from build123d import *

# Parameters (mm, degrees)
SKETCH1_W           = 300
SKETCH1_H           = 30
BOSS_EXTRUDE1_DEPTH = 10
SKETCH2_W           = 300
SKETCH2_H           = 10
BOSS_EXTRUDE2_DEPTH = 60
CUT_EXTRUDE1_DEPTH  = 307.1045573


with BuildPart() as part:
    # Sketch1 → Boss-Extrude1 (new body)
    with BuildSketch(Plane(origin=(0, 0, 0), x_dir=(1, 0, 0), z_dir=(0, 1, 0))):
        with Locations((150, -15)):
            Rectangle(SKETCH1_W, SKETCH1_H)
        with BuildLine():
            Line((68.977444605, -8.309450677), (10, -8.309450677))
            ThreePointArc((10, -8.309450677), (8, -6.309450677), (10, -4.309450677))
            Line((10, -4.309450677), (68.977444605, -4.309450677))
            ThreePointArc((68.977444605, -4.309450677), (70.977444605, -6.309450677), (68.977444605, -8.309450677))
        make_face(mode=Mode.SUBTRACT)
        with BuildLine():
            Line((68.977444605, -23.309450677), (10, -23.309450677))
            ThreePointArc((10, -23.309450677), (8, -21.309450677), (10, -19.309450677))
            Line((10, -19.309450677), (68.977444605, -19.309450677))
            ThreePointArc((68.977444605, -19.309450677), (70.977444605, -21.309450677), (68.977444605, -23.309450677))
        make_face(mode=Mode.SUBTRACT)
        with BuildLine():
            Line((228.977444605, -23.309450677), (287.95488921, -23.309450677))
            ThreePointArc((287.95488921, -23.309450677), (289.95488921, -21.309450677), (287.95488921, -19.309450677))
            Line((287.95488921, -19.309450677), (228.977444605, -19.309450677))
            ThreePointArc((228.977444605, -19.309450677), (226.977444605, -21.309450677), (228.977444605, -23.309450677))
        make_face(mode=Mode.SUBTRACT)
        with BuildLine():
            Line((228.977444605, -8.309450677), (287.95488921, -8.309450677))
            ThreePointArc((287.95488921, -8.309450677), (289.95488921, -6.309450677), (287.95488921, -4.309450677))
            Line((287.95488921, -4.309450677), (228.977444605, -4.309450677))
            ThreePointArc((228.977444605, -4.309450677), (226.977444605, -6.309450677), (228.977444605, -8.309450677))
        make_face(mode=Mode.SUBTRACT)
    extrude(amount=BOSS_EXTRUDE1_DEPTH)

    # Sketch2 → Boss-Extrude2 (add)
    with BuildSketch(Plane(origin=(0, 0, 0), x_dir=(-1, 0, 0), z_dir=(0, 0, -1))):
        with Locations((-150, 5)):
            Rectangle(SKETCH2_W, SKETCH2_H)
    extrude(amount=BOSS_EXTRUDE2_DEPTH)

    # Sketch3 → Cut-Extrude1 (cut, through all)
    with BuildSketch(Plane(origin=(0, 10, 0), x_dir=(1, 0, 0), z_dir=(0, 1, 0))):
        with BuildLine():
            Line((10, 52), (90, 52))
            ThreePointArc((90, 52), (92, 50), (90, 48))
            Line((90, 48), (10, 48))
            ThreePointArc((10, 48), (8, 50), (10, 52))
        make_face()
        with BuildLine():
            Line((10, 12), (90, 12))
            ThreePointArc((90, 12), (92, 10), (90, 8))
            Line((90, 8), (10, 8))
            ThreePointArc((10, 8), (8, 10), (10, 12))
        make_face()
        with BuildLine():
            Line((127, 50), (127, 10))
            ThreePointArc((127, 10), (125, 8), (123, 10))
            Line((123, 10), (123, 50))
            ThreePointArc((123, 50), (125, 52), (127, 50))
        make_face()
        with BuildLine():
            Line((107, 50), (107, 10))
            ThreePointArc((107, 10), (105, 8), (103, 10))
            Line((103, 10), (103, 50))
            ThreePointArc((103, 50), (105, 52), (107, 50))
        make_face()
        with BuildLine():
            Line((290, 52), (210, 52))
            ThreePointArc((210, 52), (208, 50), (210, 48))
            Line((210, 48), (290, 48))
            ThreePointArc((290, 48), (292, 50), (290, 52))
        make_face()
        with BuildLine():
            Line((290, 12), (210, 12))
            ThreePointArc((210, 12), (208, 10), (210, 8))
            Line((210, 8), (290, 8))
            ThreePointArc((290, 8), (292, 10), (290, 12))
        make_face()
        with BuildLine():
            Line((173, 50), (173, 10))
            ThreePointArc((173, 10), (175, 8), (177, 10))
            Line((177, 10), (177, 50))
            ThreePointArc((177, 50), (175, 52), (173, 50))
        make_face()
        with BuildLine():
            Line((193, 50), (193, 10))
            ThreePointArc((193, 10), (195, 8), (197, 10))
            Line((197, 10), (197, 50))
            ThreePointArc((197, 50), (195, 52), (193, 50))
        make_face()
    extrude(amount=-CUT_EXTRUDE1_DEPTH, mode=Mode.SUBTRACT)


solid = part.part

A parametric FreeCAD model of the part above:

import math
import FreeCAD as App
import Part
import Sketcher

V = App.Vector
Q = App.Units.Quantity


def add_polygon(sketch, points):
    """Adds a closed chain of lines whose ends are joined by coincident constraints."""
    first, n = sketch.GeometryCount, len(points)
    for a, b in zip(points, points[1:] + points[:1]):
        sketch.addGeometry(Part.LineSegment(App.Vector(*a, 0), App.Vector(*b, 0)), False)
    for i in range(n):
        sketch.addConstraint(Sketcher.Constraint("Coincident", first + i, 2, first + (i + 1) % n, 1))

doc = App.newDocument("Part")
body = doc.addObject("PartDesign::Body", "Body")

# Sketch on XZ plane
sketch1 = body.newObject("Sketcher::SketchObject", "Sketch")
sketch1.AttachmentSupport = (doc.getObject("XZ_Plane"), [""])
sketch1.MapMode = "FlatFace"
add_polygon(sketch1, [(0, 0), (0, 30), (300, 30), (300, 0)])  # lines 0-3
sketch1.addGeometry(Part.ArcOfCircle(Part.Circle(V(68.977445, 21.309451, 0), V(0, 0, 1), 2), math.radians(-90), math.radians(90)), False)  # 4
sketch1.addGeometry(Part.LineSegment(V(68.977445, 23.309451, 0), V(10, 23.309451, 0)), False)  # 5
sketch1.addGeometry(Part.ArcOfCircle(Part.Circle(V(10, 21.309451, 0), V(0, 0, 1), 2), math.radians(90), math.radians(270)), False)  # 6
sketch1.addGeometry(Part.LineSegment(V(10, 19.309451, 0), V(68.977445, 19.309451, 0)), False)  # 7
sketch1.addGeometry(Part.LineSegment(V(287.954889, 23.309451, 0), V(228.977445, 23.309451, 0)), False)  # 8
sketch1.addGeometry(Part.ArcOfCircle(Part.Circle(V(228.977445, 21.309451, 0), V(0, 0, 1), 2), math.radians(90), math.radians(270)), False)  # 9
sketch1.addGeometry(Part.LineSegment(V(228.977445, 19.309451, 0), V(287.954889, 19.309451, 0)), False)  # 10
sketch1.addGeometry(Part.ArcOfCircle(Part.Circle(V(287.954889, 21.309451, 0), V(0, 0, 1), 2), math.radians(-90), math.radians(90)), False)  # 11
sketch1.addGeometry(Part.ArcOfCircle(Part.Circle(V(68.977445, 6.309451, 0), V(0, 0, 1), 2), math.radians(-90), math.radians(90)), False)  # 12
sketch1.addGeometry(Part.LineSegment(V(68.977445, 8.309451, 0), V(10, 8.309451, 0)), False)  # 13
sketch1.addGeometry(Part.ArcOfCircle(Part.Circle(V(10, 6.309451, 0), V(0, 0, 1), 2), math.radians(90), math.radians(270)), False)  # 14
sketch1.addGeometry(Part.LineSegment(V(10, 4.309451, 0), V(68.977445, 4.309451, 0)), False)  # 15
sketch1.addGeometry(Part.LineSegment(V(287.954889, 8.309451, 0), V(228.977445, 8.309451, 0)), False)  # 16
sketch1.addGeometry(Part.ArcOfCircle(Part.Circle(V(228.977445, 6.309451, 0), V(0, 0, 1), 2), math.radians(90), math.radians(270)), False)  # 17
sketch1.addGeometry(Part.LineSegment(V(228.977445, 4.309451, 0), V(287.954889, 4.309451, 0)), False)  # 18
sketch1.addGeometry(Part.ArcOfCircle(Part.Circle(V(287.954889, 6.309451, 0), V(0, 0, 1), 2), math.radians(-90), math.radians(90)), False)  # 19
sketch1.addConstraint([
    Sketcher.Constraint("Tangent", 4, 2, 5, 1),
    Sketcher.Constraint("Tangent", 5, 2, 6, 1),
    Sketcher.Constraint("Tangent", 6, 2, 7, 1),
    Sketcher.Constraint("Tangent", 7, 2, 4, 1),
    Sketcher.Constraint("Tangent", 8, 2, 9, 1),
    Sketcher.Constraint("Tangent", 9, 2, 10, 1),
    Sketcher.Constraint("Tangent", 10, 2, 11, 1),
    Sketcher.Constraint("Tangent", 11, 2, 8, 1),
    Sketcher.Constraint("Tangent", 12, 2, 13, 1),
    Sketcher.Constraint("Tangent", 13, 2, 14, 1),
    Sketcher.Constraint("Tangent", 14, 2, 15, 1),
    Sketcher.Constraint("Tangent", 15, 2, 12, 1),
    Sketcher.Constraint("Tangent", 16, 2, 17, 1),
    Sketcher.Constraint("Tangent", 17, 2, 18, 1),
    Sketcher.Constraint("Tangent", 18, 2, 19, 1),
    Sketcher.Constraint("Tangent", 19, 2, 16, 1),
    Sketcher.Constraint("Vertical", 0),
    Sketcher.Constraint("Horizontal", 1),
    Sketcher.Constraint("Vertical", 2),
    Sketcher.Constraint("Horizontal", 3),
    Sketcher.Constraint("Horizontal", 5),
    Sketcher.Constraint("Horizontal", 7),
    Sketcher.Constraint("Horizontal", 8),
    Sketcher.Constraint("Horizontal", 10),
    Sketcher.Constraint("Horizontal", 13),
    Sketcher.Constraint("Horizontal", 15),
    Sketcher.Constraint("Horizontal", 16),
    Sketcher.Constraint("Horizontal", 18),
    Sketcher.Constraint("Coincident", 3, 2, -1, 1),
    Sketcher.Constraint("Equal", 6, 9),
    Sketcher.Constraint("Equal", 11, 12),
    Sketcher.Constraint("Equal", 14, 17),
    Sketcher.Constraint("Horizontal", 6, 3, 9, 3),
    Sketcher.Constraint("Horizontal", 14, 3, 17, 3),
    Sketcher.Constraint("Vertical", 4, 3, 12, 3),
    Sketcher.Constraint("Vertical", 6, 3, 14, 3),
    Sketcher.Constraint("Vertical", 9, 3, 17, 3),
    Sketcher.Constraint("Vertical", 11, 3, 19, 3),
    Sketcher.Constraint("Equal", 7, 8),
    Sketcher.Constraint("Radius", 4, Q("2 mm")),
    Sketcher.Constraint("DistanceX", 1, 1, 1, 2, Q("300 mm")),
    Sketcher.Constraint("DistanceY", 0, 1, 0, 2, Q("30 mm")),
    Sketcher.Constraint("DistanceX", -1, 1, 6, 3, Q("10 mm")),
    Sketcher.Constraint("DistanceX", 4, 3, 9, 3, Q("160 mm")),
    Sketcher.Constraint("DistanceY", 12, 3, 4, 3, Q("15 mm")),
    Sketcher.Constraint("DistanceX", 5, 2, 5, 1, Q("58.977445 mm")),
    Sketcher.Constraint("DistanceY", -1, 1, 4, 3, Q("21.309451 mm")),
])
pad1 = body.newObject("PartDesign::Pad", "Pad")
pad1.Profile = sketch1
pad1.Length = 10
pad1.Reversed = True

# Sketch on XY plane
sketch2 = body.newObject("Sketcher::SketchObject", "Sketch001")
sketch2.AttachmentSupport = (doc.getObject("XY_Plane"), [""])
sketch2.MapMode = "FlatFace"
add_polygon(sketch2, [(300, 10), (300, 0), (0, 0), (0, 10)])  # lines 0-3
sketch2.addConstraint([
    Sketcher.Constraint("Vertical", 0),
    Sketcher.Constraint("Horizontal", 1),
    Sketcher.Constraint("Vertical", 2),
    Sketcher.Constraint("Horizontal", 3),
    Sketcher.Constraint("Coincident", 1, 2, -1, 1),
    Sketcher.Constraint("DistanceX", 1, 2, 1, 1, Q("300 mm")),
    Sketcher.Constraint("DistanceY", 0, 2, 0, 1, Q("10 mm")),
])
pad2 = body.newObject("PartDesign::Pad", "Pad001")
pad2.Profile = sketch2
pad2.Length = 60
pad2.Reversed = True

# Sketch on XZ plane
sketch3 = body.newObject("Sketcher::SketchObject", "Sketch002")
sketch3.AttachmentSupport = (doc.getObject("XZ_Plane"), [""])
sketch3.MapMode = "FlatFace"
sketch3.AttachmentOffset = App.Placement(V(0, 0, -10), App.Rotation())
sketch3.addGeometry([
    Part.LineSegment(V(90, -52, 0), V(10, -52, 0)),  # 0
    Part.ArcOfCircle(Part.Circle(V(10, -50, 0), V(0, 0, 1), 2), math.radians(90), math.radians(270)),  # 1
    Part.LineSegment(V(10, -48, 0), V(90, -48, 0)),  # 2
    Part.ArcOfCircle(Part.Circle(V(90, -50, 0), V(0, 0, 1), 2), math.radians(-90), math.radians(90)),  # 3
    Part.LineSegment(V(90, -12, 0), V(10, -12, 0)),  # 4
    Part.ArcOfCircle(Part.Circle(V(10, -10, 0), V(0, 0, 1), 2), math.radians(90), math.radians(270)),  # 5
    Part.LineSegment(V(10, -8, 0), V(90, -8, 0)),  # 6
    Part.ArcOfCircle(Part.Circle(V(90, -10, 0), V(0, 0, 1), 2), math.radians(-90), math.radians(90)),  # 7
    Part.LineSegment(V(127, -10, 0), V(127, -50, 0)),  # 8
    Part.ArcOfCircle(Part.Circle(V(125, -50, 0), V(0, 0, 1), 2), math.radians(180), math.radians(360)),  # 9
    Part.LineSegment(V(123, -50, 0), V(123, -10, 0)),  # 10
    Part.ArcOfCircle(Part.Circle(V(125, -10, 0), V(0, 0, 1), 2), math.radians(0), math.radians(180)),  # 11
    Part.LineSegment(V(107, -10, 0), V(107, -50, 0)),  # 12
    Part.ArcOfCircle(Part.Circle(V(105, -50, 0), V(0, 0, 1), 2), math.radians(180), math.radians(360)),  # 13
    Part.LineSegment(V(103, -50, 0), V(103, -10, 0)),  # 14
    Part.ArcOfCircle(Part.Circle(V(105, -10, 0), V(0, 0, 1), 2), math.radians(0), math.radians(180)),  # 15
    Part.LineSegment(V(290, -52, 0), V(210, -52, 0)),  # 16
    Part.ArcOfCircle(Part.Circle(V(210, -50, 0), V(0, 0, 1), 2), math.radians(90), math.radians(270)),  # 17
    Part.LineSegment(V(210, -48, 0), V(290, -48, 0)),  # 18
    Part.ArcOfCircle(Part.Circle(V(290, -50, 0), V(0, 0, 1), 2), math.radians(-90), math.radians(90)),  # 19
    Part.LineSegment(V(290, -12, 0), V(210, -12, 0)),  # 20
    Part.ArcOfCircle(Part.Circle(V(210, -10, 0), V(0, 0, 1), 2), math.radians(90), math.radians(270)),  # 21
    Part.LineSegment(V(210, -8, 0), V(290, -8, 0)),  # 22
    Part.ArcOfCircle(Part.Circle(V(290, -10, 0), V(0, 0, 1), 2), math.radians(-90), math.radians(90)),  # 23
    Part.LineSegment(V(173, -50, 0), V(173, -10, 0)),  # 24
    Part.ArcOfCircle(Part.Circle(V(175, -10, 0), V(0, 0, 1), 2), math.radians(0), math.radians(180)),  # 25
    Part.LineSegment(V(177, -10, 0), V(177, -50, 0)),  # 26
    Part.ArcOfCircle(Part.Circle(V(175, -50, 0), V(0, 0, 1), 2), math.radians(180), math.radians(360)),  # 27
    Part.LineSegment(V(193, -50, 0), V(193, -10, 0)),  # 28
    Part.ArcOfCircle(Part.Circle(V(195, -10, 0), V(0, 0, 1), 2), math.radians(0), math.radians(180)),  # 29
    Part.LineSegment(V(197, -10, 0), V(197, -50, 0)),  # 30
    Part.ArcOfCircle(Part.Circle(V(195, -50, 0), V(0, 0, 1), 2), math.radians(180), math.radians(360)),  # 31
], False)
sketch3.addConstraint([
    Sketcher.Constraint("Tangent", 0, 2, 1, 2),
    Sketcher.Constraint("Tangent", 1, 1, 2, 1),
    Sketcher.Constraint("Tangent", 2, 2, 3, 2),
    Sketcher.Constraint("Tangent", 3, 1, 0, 1),
    Sketcher.Constraint("Tangent", 4, 2, 5, 2),
    Sketcher.Constraint("Tangent", 5, 1, 6, 1),
    Sketcher.Constraint("Tangent", 6, 2, 7, 2),
    Sketcher.Constraint("Tangent", 7, 1, 4, 1),
    Sketcher.Constraint("Tangent", 8, 2, 9, 2),
    Sketcher.Constraint("Tangent", 9, 1, 10, 1),
    Sketcher.Constraint("Tangent", 10, 2, 11, 2),
    Sketcher.Constraint("Tangent", 11, 1, 8, 1),
    Sketcher.Constraint("Tangent", 12, 2, 13, 2),
    Sketcher.Constraint("Tangent", 13, 1, 14, 1),
    Sketcher.Constraint("Tangent", 14, 2, 15, 2),
    Sketcher.Constraint("Tangent", 15, 1, 12, 1),
    Sketcher.Constraint("Tangent", 16, 2, 17, 2),
    Sketcher.Constraint("Tangent", 17, 1, 18, 1),
    Sketcher.Constraint("Tangent", 18, 2, 19, 2),
    Sketcher.Constraint("Tangent", 19, 1, 16, 1),
    Sketcher.Constraint("Tangent", 20, 2, 21, 2),
    Sketcher.Constraint("Tangent", 21, 1, 22, 1),
    Sketcher.Constraint("Tangent", 22, 2, 23, 2),
    Sketcher.Constraint("Tangent", 23, 1, 20, 1),
    Sketcher.Constraint("Tangent", 24, 2, 25, 2),
    Sketcher.Constraint("Tangent", 25, 1, 26, 1),
    Sketcher.Constraint("Tangent", 26, 2, 27, 2),
    Sketcher.Constraint("Tangent", 27, 1, 24, 1),
    Sketcher.Constraint("Tangent", 28, 2, 29, 2),
    Sketcher.Constraint("Tangent", 29, 1, 30, 1),
    Sketcher.Constraint("Tangent", 30, 2, 31, 2),
    Sketcher.Constraint("Tangent", 31, 1, 28, 1),
    Sketcher.Constraint("Horizontal", 0),
    Sketcher.Constraint("Horizontal", 2),
    Sketcher.Constraint("Horizontal", 4),
    Sketcher.Constraint("Horizontal", 6),
    Sketcher.Constraint("Vertical", 8),
    Sketcher.Constraint("Vertical", 10),
    Sketcher.Constraint("Vertical", 12),
    Sketcher.Constraint("Vertical", 14),
    Sketcher.Constraint("Horizontal", 16),
    Sketcher.Constraint("Horizontal", 18),
    Sketcher.Constraint("Horizontal", 20),
    Sketcher.Constraint("Horizontal", 22),
    Sketcher.Constraint("Vertical", 24),
    Sketcher.Constraint("Vertical", 26),
    Sketcher.Constraint("Vertical", 28),
    Sketcher.Constraint("Vertical", 30),
    Sketcher.Constraint("Equal", 3, 5),
    Sketcher.Constraint("Equal", 7, 9),
    Sketcher.Constraint("Equal", 11, 13),
    Sketcher.Constraint("Equal", 15, 17),
    Sketcher.Constraint("Equal", 19, 21),
    Sketcher.Constraint("Equal", 23, 25),
    Sketcher.Constraint("Equal", 27, 29),
    Sketcher.Constraint("Horizontal", 3, 3, 9, 3),
    Sketcher.Constraint("Horizontal", 7, 3, 11, 3),
    Sketcher.Constraint("Horizontal", 9, 3, 13, 3),
    Sketcher.Constraint("Horizontal", 11, 3, 15, 3),
    Sketcher.Constraint("Horizontal", 13, 3, 17, 3),
    Sketcher.Constraint("Horizontal", 15, 3, 21, 3),
    Sketcher.Constraint("Horizontal", 23, 3, 25, 3),
    Sketcher.Constraint("Horizontal", 19, 3, 27, 3),
    Sketcher.Constraint("Horizontal", 25, 3, 29, 3),
    Sketcher.Constraint("Horizontal", 27, 3, 31, 3),
    Sketcher.Constraint("Vertical", 1, 3, 5, 3),
    Sketcher.Constraint("Vertical", 3, 3, 7, 3),
    Sketcher.Constraint("Vertical", 17, 3, 21, 3),
    Sketcher.Constraint("Vertical", 19, 3, 23, 3),
    Sketcher.Constraint("Equal", 6, 16),
    Sketcher.Constraint("Radius", 1, Q("2 mm")),
    Sketcher.Constraint("DistanceX", 0, 2, 0, 1, Q("80 mm")),
    Sketcher.Constraint("DistanceY", 8, 2, 8, 1, Q("40 mm")),
    Sketcher.Constraint("DistanceX", -1, 1, 1, 3, Q("10 mm")),
    Sketcher.Constraint("DistanceY", 1, 3, -1, 1, Q("50 mm")),
    Sketcher.Constraint("DistanceX", -1, 1, 9, 3, Q("125 mm")),
    Sketcher.Constraint("DistanceX", -1, 1, 13, 3, Q("105 mm")),
    Sketcher.Constraint("DistanceX", -1, 1, 17, 3, Q("210 mm")),
    Sketcher.Constraint("DistanceX", -1, 1, 25, 3, Q("175 mm")),
    Sketcher.Constraint("DistanceX", -1, 1, 29, 3, Q("195 mm")),
])
pocket1 = body.newObject("PartDesign::Pocket", "Pocket")
pocket1.Profile = sketch3
pocket1.Type = "ThroughAll"
pocket1.Reversed = True

doc.recompute()
